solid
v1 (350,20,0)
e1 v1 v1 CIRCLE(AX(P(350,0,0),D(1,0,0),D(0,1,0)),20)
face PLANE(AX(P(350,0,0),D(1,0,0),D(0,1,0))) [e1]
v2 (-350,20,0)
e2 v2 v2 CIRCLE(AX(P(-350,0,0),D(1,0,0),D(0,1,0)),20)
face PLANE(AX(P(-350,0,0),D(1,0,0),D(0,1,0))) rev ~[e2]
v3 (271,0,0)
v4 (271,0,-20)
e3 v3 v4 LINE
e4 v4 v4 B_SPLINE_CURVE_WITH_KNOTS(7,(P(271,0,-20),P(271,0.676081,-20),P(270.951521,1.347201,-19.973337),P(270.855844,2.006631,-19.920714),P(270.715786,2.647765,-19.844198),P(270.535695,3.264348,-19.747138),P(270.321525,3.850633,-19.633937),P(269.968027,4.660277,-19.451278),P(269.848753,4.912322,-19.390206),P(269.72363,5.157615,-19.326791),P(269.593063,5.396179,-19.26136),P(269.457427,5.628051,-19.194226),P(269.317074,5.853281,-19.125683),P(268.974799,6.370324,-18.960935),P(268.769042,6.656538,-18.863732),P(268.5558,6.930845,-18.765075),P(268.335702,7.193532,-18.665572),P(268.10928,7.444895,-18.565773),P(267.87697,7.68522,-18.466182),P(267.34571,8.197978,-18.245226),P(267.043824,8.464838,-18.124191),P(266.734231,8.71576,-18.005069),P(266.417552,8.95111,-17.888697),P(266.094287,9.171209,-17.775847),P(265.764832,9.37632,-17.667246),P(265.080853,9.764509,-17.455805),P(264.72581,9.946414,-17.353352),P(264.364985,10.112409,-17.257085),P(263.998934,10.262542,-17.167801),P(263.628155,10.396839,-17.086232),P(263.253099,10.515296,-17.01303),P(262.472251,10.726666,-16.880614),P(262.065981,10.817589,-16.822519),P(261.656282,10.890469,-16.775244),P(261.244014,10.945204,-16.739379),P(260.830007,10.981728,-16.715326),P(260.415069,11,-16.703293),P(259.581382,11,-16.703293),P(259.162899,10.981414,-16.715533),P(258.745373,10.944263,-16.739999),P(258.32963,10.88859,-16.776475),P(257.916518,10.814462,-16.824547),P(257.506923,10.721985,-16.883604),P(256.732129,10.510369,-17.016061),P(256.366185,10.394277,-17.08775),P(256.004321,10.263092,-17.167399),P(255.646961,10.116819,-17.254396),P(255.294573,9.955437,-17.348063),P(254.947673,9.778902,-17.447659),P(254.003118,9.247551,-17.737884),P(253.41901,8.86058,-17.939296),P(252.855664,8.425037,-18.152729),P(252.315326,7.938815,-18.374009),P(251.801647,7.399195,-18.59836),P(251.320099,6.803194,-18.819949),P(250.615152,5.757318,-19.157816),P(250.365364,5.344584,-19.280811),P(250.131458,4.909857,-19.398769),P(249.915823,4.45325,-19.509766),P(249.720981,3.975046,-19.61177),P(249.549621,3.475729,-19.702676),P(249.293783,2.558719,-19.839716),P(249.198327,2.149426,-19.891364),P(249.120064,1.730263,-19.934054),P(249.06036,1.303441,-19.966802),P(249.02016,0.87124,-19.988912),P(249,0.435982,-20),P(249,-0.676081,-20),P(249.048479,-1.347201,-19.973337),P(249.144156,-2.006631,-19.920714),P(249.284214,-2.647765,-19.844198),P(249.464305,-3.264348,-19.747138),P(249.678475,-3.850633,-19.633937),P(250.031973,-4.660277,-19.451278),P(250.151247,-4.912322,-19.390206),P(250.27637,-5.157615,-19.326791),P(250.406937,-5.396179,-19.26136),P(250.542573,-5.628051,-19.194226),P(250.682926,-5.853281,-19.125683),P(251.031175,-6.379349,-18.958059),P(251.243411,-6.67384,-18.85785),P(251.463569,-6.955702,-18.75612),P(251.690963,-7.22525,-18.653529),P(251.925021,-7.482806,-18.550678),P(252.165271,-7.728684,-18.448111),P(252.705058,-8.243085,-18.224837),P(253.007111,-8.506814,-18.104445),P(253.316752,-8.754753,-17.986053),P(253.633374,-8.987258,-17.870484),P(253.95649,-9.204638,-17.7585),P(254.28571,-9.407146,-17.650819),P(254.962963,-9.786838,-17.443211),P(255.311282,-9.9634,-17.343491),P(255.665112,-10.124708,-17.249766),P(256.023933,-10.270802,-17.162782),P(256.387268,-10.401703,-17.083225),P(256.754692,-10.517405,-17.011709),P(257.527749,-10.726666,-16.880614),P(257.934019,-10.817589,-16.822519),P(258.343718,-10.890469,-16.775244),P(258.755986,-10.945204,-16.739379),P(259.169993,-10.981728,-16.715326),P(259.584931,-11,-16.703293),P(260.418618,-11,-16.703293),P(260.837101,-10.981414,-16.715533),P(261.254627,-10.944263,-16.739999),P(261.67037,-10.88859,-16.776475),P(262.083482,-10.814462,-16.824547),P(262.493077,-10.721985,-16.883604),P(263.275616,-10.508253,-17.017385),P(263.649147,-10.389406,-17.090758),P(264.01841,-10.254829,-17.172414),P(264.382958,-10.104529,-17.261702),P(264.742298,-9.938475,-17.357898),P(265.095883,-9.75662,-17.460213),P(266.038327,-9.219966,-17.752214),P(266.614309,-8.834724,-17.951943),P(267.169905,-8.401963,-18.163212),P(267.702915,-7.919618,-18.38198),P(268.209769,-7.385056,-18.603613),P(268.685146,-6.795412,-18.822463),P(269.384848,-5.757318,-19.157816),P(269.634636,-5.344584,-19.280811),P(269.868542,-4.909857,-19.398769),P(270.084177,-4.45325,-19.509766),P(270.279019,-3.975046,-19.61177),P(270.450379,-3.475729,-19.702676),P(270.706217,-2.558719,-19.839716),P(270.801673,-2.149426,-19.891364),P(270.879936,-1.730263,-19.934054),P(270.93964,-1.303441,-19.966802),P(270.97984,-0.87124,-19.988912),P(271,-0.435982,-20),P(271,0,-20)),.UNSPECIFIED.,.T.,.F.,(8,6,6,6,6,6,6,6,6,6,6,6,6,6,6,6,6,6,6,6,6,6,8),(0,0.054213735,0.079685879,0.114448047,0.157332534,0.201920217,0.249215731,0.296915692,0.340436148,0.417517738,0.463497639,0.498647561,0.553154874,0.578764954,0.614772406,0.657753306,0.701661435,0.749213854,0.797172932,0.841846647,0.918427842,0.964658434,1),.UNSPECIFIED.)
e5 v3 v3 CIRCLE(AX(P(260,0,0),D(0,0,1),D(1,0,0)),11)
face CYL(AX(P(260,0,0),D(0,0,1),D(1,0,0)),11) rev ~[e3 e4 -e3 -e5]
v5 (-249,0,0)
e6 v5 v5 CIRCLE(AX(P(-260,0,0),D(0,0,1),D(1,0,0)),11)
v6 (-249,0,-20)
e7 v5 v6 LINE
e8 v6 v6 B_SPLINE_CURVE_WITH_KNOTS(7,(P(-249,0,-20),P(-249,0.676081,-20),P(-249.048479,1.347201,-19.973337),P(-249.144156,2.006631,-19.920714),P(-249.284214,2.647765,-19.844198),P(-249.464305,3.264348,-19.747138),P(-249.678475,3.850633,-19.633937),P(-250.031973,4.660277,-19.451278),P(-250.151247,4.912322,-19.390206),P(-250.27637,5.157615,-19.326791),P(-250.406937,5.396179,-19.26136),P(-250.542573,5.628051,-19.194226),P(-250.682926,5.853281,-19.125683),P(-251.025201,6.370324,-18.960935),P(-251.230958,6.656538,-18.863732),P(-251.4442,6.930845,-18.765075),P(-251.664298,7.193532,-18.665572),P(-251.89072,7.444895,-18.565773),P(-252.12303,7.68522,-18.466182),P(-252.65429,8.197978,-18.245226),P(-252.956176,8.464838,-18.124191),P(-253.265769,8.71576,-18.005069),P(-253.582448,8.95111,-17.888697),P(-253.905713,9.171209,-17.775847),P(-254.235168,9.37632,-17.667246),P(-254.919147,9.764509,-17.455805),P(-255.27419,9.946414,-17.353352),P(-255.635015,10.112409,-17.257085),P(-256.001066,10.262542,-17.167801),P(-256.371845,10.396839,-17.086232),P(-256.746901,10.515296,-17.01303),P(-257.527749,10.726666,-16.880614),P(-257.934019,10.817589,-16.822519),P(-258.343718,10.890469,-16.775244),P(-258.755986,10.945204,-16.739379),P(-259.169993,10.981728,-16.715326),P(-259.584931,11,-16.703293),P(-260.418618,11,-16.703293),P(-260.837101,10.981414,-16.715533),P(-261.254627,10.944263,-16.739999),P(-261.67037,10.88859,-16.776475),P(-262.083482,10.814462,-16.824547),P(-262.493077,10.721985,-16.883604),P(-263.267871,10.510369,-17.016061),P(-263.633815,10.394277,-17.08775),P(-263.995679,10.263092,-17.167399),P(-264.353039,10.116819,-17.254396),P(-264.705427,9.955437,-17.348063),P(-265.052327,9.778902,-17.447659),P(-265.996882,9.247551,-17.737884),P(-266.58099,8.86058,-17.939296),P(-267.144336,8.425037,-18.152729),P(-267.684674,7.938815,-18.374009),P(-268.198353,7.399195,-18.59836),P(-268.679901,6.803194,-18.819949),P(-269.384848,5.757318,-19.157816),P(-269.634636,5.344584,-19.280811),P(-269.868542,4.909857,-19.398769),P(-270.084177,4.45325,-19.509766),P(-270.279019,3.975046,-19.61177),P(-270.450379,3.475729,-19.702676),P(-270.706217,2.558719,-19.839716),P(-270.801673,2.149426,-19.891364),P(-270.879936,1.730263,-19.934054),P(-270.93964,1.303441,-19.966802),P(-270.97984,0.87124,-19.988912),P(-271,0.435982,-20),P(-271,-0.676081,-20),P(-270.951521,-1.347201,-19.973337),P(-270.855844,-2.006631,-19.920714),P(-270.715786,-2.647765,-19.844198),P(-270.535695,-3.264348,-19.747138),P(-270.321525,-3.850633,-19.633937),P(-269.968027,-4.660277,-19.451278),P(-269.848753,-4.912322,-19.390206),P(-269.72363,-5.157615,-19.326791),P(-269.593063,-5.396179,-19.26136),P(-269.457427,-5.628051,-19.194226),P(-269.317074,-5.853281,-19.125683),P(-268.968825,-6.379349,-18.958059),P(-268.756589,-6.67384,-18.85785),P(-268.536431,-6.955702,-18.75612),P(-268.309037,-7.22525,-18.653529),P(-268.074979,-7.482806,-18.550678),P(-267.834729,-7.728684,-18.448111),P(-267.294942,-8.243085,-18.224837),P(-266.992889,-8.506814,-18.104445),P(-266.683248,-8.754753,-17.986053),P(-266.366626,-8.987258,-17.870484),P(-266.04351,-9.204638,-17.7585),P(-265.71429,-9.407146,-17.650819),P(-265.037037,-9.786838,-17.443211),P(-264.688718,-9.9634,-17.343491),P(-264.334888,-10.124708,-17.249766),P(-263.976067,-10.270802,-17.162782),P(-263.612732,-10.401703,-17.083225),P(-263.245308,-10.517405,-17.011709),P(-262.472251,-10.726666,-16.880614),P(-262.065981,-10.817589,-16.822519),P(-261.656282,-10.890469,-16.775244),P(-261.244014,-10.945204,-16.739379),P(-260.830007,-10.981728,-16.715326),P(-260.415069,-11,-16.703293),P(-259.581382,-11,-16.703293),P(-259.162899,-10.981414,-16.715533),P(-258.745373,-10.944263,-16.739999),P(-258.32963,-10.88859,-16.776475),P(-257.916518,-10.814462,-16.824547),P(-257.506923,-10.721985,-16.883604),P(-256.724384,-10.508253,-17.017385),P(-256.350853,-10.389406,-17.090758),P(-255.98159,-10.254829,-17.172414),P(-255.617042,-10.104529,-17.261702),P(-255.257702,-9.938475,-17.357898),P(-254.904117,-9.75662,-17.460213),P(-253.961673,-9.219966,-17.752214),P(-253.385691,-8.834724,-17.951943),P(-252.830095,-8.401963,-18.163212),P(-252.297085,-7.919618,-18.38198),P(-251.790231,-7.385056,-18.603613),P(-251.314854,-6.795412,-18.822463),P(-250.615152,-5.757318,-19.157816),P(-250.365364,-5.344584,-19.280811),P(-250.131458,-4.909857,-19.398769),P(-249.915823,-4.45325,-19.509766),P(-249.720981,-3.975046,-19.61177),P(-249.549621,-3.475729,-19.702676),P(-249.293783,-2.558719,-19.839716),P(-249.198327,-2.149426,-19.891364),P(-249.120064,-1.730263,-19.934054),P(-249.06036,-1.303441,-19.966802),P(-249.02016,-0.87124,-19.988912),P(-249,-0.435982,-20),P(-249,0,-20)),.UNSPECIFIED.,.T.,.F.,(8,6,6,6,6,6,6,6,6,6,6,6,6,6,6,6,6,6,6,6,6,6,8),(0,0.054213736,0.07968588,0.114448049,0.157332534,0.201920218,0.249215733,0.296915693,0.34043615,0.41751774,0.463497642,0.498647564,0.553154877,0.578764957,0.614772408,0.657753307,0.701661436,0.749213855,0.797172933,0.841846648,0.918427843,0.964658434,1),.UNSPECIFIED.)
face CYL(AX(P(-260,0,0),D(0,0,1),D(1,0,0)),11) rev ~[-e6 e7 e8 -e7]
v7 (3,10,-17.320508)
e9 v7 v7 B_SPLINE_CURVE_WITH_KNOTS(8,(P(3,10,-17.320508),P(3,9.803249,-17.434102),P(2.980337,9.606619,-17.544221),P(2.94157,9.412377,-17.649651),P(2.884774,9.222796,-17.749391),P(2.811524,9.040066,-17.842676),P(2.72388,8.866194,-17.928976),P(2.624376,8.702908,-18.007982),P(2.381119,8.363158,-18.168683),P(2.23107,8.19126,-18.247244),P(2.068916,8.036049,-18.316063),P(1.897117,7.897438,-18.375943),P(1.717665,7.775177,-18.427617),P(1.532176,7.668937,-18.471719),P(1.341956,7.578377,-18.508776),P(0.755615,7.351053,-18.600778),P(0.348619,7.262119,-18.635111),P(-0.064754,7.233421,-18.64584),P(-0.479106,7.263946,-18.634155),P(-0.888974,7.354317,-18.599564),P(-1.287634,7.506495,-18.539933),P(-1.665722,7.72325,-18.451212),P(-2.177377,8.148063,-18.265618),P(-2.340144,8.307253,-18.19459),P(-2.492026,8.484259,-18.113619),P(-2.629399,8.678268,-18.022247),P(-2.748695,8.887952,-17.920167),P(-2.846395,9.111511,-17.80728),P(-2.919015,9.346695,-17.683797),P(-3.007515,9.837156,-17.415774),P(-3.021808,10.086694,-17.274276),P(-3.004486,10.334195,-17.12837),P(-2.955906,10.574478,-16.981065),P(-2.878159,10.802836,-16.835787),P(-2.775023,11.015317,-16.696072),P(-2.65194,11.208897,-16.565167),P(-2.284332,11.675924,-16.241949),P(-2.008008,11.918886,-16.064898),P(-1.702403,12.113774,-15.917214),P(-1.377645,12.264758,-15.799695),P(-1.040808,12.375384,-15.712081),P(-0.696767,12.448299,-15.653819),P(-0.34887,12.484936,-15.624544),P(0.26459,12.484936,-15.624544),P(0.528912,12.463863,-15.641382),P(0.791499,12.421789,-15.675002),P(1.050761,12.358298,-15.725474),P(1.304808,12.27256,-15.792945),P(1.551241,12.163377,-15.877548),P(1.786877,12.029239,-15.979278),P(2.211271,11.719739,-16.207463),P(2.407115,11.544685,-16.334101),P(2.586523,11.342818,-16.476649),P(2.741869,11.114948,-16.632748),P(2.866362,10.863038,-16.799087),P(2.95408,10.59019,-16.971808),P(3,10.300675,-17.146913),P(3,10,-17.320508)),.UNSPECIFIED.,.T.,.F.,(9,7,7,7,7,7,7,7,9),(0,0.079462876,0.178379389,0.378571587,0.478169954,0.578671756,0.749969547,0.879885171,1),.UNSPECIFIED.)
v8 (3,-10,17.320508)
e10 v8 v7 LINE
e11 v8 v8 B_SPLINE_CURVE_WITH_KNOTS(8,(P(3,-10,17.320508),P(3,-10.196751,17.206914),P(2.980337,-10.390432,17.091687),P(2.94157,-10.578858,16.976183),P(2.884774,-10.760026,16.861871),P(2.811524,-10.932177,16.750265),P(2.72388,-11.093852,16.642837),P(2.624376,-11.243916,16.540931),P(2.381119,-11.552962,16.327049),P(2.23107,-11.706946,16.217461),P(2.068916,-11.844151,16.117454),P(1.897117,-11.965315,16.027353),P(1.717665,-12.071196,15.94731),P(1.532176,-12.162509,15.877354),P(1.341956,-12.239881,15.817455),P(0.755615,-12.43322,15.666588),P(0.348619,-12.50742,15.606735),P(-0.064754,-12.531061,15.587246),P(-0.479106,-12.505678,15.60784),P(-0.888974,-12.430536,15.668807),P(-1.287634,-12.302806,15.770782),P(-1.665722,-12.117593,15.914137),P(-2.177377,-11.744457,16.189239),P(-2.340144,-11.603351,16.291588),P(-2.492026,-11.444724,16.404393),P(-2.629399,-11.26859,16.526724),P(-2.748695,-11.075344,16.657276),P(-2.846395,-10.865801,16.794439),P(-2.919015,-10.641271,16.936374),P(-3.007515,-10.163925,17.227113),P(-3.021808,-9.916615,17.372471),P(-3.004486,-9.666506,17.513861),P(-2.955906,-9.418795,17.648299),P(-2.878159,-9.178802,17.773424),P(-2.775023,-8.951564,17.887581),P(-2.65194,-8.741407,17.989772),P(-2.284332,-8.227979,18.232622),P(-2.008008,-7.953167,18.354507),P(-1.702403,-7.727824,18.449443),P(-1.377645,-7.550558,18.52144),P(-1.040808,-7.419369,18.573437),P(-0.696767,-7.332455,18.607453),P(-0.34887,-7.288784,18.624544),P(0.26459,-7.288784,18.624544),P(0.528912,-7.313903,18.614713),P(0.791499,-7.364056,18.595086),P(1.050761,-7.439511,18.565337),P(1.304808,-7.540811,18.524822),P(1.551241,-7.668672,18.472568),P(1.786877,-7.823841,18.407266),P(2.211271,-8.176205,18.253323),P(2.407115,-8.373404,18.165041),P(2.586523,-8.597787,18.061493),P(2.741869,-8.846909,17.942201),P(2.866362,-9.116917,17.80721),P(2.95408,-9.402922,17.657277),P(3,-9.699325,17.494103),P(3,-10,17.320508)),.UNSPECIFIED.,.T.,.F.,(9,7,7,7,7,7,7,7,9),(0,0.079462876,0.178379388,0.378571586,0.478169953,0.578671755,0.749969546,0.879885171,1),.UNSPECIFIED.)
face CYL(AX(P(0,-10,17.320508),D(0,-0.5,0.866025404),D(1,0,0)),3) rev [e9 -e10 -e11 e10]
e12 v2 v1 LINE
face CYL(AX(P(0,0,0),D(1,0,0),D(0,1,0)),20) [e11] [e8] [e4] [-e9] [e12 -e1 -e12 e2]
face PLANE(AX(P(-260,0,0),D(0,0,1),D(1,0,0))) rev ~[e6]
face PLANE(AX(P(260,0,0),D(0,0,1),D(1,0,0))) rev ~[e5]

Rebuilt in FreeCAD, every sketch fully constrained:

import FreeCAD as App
import Part
import Sketcher

V = App.Vector
Q = App.Units.Quantity

doc = App.newDocument("Part")
body = doc.addObject("PartDesign::Body", "Body")

sketch1 = doc.addObject("Sketcher::SketchObject", "Sketch")
body.addObject(sketch1)
sketch1.AttachmentSupport = (doc.YZ_Plane, [""])
sketch1.MapMode = "FlatFace"
sketch1.addGeometry(Part.Circle(V(0, 0, 0), V(0, 0, 1), 20), False)
sketch1.addConstraint([
    Sketcher.Constraint("Coincident", 0, 3, -1, 1),
    Sketcher.Constraint("Diameter", 0, Q("40 mm")),
])
pad1 = doc.addObject("PartDesign::Pad", "Pad")
body.addObject(pad1)
pad1.Profile = sketch1
pad1.Length = 700
pad1.Midplane = True

sketch2 = doc.addObject("Sketcher::SketchObject", "Sketch001")
body.addObject(sketch2)
sketch2.AttachmentSupport = (doc.XY_Plane, [""])
sketch2.MapMode = "FlatFace"
sketch2.addGeometry([
    Part.Circle(V(-260, 0, 0), V(0, 0, 1), 11),
    Part.Circle(V(260, 0, 0), V(0, 0, 1), 11),
], False)
sketch2.addConstraint([
    Sketcher.Constraint("Equal", 0, 1),
    Sketcher.Constraint("Symmetric", 0, 3, 1, 3, -1, 1),
    Sketcher.Constraint("PointOnObject", 0, 3, -1),
    Sketcher.Constraint("Diameter", 0, Q("22 mm")),
    Sketcher.Constraint("DistanceX", 0, 3, -1, 1, Q("260 mm")),
])
pocket1 = doc.addObject("PartDesign::Pocket", "Pocket")
body.addObject(pocket1)
pocket1.Profile = sketch2
pocket1.Length = 25.4

sketch3 = doc.addObject("Sketcher::SketchObject", "Sketch002")
body.addObject(sketch3)
sketch3.Placement = App.Placement(V(0, -10, 17.320508), App.Rotation(V(1, 0, 0), V(0, -0.866025404, -0.5), V(0, 0.5, -0.866025404), "ZXY"))
sketch3.addGeometry(Part.Circle(V(0, 0, 0), V(0, 0, 1), 3), False)
sketch3.addConstraint([
    Sketcher.Constraint("Coincident", 0, 3, -1, 1),
    Sketcher.Constraint("Diameter", 0, Q("6 mm")),
])
pocket2 = doc.addObject("PartDesign::Pocket", "Pocket001")
body.addObject(pocket2)
pocket2.Profile = sketch3
pocket2.Type = "ThroughAll"
pocket2.Reversed = True

doc.recompute()
